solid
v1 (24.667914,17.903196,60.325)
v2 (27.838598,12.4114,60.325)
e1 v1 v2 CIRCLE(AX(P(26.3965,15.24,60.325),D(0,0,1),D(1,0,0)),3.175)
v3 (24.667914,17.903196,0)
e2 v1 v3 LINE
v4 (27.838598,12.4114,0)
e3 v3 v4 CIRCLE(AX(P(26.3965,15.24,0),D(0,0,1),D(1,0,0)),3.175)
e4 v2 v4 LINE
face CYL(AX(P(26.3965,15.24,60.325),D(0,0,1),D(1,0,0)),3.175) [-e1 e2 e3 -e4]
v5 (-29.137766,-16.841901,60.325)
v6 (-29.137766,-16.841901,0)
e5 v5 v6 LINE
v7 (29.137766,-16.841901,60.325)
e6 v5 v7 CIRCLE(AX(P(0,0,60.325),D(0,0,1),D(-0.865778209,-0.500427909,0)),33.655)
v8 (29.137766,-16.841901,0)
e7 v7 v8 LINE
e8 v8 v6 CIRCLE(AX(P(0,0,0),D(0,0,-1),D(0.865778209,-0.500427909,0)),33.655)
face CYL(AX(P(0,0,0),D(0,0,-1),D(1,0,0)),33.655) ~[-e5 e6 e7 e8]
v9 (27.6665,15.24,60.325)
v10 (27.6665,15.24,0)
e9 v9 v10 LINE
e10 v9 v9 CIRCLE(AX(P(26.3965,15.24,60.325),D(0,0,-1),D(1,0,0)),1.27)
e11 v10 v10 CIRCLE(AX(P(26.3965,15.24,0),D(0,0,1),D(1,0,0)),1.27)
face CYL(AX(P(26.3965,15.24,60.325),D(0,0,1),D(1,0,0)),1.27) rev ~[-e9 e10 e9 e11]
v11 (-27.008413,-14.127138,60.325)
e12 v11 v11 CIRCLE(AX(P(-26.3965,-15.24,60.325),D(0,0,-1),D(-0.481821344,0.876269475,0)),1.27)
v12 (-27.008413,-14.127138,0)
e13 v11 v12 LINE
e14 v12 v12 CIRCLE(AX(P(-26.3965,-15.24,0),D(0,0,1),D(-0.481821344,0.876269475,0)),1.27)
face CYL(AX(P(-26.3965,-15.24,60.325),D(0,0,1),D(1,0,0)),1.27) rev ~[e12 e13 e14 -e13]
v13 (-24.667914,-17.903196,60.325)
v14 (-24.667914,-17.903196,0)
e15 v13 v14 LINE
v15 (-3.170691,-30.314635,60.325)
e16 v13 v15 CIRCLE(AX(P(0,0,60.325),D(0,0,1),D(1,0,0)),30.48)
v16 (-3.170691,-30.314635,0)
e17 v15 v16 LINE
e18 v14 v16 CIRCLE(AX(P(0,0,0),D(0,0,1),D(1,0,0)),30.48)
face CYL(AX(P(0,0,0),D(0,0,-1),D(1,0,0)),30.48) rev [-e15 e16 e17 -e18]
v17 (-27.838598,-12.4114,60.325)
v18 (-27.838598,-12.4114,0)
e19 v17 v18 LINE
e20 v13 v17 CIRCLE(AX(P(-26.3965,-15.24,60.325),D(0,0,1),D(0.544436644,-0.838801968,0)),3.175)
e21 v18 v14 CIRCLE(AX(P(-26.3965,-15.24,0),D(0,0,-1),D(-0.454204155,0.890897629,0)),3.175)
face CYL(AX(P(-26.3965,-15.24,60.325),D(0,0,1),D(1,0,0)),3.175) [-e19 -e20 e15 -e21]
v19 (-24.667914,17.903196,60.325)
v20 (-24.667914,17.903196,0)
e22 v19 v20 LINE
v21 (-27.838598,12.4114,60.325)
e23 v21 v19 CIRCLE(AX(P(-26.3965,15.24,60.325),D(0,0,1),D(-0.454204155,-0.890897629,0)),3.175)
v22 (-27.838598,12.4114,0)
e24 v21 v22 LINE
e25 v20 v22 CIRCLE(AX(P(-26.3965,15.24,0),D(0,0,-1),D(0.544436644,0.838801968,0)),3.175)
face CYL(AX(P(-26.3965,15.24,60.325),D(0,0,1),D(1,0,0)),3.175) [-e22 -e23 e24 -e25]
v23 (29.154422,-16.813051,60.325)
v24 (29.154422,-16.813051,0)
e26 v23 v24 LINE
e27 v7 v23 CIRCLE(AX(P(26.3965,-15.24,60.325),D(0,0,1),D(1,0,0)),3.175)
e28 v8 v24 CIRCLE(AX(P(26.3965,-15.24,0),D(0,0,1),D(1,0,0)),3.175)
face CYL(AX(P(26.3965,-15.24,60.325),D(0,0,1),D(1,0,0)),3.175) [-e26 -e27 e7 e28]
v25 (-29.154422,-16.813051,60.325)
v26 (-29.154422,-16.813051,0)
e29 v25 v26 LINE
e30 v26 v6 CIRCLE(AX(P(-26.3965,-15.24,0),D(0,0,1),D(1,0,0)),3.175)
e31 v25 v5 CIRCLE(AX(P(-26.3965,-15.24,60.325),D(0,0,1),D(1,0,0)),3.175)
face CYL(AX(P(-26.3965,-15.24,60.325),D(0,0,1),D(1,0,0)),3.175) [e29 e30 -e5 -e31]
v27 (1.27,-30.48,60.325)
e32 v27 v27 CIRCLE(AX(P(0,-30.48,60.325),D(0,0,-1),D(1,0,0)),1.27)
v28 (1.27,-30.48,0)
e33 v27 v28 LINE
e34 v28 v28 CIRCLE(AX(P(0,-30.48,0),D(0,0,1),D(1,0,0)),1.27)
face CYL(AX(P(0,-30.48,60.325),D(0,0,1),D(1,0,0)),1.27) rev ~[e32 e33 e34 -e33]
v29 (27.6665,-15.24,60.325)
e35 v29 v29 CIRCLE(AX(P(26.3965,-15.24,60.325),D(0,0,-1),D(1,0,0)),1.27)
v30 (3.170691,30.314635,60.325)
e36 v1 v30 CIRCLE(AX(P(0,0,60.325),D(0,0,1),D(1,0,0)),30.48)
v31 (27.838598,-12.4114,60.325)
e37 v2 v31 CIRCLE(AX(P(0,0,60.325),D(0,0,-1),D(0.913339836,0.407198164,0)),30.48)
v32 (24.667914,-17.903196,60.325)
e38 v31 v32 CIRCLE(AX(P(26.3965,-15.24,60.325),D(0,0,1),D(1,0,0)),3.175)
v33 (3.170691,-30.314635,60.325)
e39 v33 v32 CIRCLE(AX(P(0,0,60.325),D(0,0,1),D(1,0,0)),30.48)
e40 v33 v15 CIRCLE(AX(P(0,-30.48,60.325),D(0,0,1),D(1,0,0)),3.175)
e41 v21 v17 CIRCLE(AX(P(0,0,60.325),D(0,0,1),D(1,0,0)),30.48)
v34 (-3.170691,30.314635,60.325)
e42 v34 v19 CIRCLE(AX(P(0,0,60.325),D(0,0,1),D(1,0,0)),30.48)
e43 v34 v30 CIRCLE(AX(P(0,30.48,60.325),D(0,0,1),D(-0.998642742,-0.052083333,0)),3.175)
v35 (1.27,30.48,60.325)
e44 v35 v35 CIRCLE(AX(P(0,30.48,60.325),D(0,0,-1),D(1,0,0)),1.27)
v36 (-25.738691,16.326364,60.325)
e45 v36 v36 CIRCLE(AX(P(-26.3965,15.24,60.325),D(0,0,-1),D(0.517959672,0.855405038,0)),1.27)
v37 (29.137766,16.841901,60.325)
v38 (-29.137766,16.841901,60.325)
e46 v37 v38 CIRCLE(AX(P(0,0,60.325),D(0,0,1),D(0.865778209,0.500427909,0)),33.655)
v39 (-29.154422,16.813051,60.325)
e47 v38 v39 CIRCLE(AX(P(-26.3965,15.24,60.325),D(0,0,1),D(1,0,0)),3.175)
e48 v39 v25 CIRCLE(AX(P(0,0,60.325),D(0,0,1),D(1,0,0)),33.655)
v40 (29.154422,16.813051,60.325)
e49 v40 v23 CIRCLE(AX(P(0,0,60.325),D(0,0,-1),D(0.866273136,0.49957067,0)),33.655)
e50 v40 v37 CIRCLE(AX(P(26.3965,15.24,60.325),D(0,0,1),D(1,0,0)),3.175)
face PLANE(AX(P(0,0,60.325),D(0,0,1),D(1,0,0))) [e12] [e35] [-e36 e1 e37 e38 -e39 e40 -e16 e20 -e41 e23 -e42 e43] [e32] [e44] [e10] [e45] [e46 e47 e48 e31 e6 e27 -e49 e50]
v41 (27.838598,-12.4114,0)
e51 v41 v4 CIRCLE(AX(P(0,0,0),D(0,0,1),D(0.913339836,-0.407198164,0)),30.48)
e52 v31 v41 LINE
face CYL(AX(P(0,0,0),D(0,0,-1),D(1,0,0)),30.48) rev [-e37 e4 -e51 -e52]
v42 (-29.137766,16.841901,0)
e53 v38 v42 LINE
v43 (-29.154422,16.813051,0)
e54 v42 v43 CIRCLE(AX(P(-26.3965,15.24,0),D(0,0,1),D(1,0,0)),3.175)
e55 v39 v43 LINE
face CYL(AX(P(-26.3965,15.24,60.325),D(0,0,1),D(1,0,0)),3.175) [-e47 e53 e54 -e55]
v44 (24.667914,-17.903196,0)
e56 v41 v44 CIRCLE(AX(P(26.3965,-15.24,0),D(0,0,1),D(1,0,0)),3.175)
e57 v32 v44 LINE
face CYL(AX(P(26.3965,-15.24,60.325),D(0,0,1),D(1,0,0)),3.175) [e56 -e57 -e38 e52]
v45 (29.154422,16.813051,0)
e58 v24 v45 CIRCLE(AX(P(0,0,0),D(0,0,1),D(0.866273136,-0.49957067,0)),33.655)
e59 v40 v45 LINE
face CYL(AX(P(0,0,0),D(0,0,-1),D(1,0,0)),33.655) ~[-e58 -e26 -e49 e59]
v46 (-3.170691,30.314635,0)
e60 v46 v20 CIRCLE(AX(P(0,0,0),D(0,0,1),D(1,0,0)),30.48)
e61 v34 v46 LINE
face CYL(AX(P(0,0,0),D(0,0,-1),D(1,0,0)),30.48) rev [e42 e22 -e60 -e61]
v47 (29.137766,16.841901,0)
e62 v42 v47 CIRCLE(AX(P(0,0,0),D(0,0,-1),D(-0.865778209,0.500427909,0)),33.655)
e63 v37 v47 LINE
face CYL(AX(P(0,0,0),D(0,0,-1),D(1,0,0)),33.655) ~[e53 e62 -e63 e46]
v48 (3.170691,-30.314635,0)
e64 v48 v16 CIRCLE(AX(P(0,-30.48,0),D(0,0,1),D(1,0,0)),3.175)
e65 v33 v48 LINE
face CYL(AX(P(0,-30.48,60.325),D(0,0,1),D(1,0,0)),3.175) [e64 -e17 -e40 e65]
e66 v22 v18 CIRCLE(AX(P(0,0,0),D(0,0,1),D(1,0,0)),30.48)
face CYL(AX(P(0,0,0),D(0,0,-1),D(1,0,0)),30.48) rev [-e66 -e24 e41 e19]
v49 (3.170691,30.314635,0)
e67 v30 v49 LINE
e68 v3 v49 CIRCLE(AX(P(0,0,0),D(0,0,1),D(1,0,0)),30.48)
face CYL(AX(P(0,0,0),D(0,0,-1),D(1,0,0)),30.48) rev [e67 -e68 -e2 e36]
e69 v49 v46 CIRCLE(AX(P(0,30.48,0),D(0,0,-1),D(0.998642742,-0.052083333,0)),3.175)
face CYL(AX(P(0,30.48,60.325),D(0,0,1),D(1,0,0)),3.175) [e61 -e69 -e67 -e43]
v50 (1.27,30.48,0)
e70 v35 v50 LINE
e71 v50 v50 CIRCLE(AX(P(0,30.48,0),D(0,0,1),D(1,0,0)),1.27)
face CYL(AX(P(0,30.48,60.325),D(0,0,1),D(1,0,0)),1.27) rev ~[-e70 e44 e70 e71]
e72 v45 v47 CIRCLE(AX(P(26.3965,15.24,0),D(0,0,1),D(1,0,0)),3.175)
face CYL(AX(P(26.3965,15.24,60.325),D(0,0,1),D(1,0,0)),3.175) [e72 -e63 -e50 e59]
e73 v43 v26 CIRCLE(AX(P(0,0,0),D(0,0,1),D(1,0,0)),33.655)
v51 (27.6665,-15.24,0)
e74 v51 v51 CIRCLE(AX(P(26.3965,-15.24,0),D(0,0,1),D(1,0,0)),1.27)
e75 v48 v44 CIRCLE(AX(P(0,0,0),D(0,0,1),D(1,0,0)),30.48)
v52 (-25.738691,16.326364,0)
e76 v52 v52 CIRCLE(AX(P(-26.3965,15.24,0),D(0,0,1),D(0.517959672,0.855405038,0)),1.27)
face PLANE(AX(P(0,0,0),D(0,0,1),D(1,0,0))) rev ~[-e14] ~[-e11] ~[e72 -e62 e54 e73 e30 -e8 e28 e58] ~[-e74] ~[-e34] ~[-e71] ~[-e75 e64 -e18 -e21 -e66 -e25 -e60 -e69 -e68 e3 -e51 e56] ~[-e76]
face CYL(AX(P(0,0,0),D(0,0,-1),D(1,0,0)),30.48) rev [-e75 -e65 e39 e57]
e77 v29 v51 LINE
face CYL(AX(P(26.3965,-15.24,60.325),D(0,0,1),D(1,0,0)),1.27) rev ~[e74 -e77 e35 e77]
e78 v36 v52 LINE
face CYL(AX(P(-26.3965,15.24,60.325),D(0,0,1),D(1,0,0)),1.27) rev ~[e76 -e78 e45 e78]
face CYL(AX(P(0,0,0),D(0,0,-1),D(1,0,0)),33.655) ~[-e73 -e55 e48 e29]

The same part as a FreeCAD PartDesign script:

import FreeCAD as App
import Part
import Sketcher

V = App.Vector
Q = App.Units.Quantity

doc = App.newDocument("Part")
body = doc.addObject("PartDesign::Body", "Body")

# Sketch on XY plane
sketch1 = body.newObject("Sketcher::SketchObject", "Sketch")
sketch1.AttachmentSupport = (doc.getObject("XY_Plane"), [""])
sketch1.MapMode = "FlatFace"
sketch1.addGeometry([
    Part.Circle(V(0, 0, 0), V(0, 0, 1), 34),
    Part.Circle(V(0, 0, 0), V(0, 0, 1), 30),
], False)
sketch1.addConstraint([
    Sketcher.Constraint("Coincident", 0, 3, -1, 1),
    Sketcher.Constraint("Coincident", 1, 3, -1, 1),
    Sketcher.Constraint("Diameter", 1, Q("2.4 in")),
    Sketcher.Constraint("Diameter", 0, Q("2.65 in")),
])
pad1 = body.newObject("PartDesign::Pad", "Pad")
pad1.Profile = sketch1
pad1.Length = Q("2.375 in")

# Sketch on XY plane
sketch2 = body.newObject("Sketcher::SketchObject", "Sketch001")
sketch2.AttachmentSupport = (doc.getObject("XY_Plane"), [""])
sketch2.MapMode = "FlatFace"
sketch2.AttachmentOffset = App.Placement(V(0, 0, 2.375 * 25.4), App.Rotation())
sketch2.addGeometry([
    Part.Circle(V(0, 30.5, 0), V(0, 0, 1), 3.2),  # 0
    Part.Circle(V(0, 30.5, 0), V(0, 0, 1), 1.3),  # 1
    Part.Circle(V(-26.4, 15.2, 0), V(0, 0, 1), 3.2),  # 2
    Part.Circle(V(-26.4, 15.2, 0), V(0, 0, 1), 1.3),  # 3
    Part.Circle(V(-26.4, -15.2, 0), V(0, 0, 1), 3.2),  # 4
    Part.Circle(V(-26.4, -15.2, 0), V(0, 0, 1), 1.3),  # 5
    Part.Circle(V(0, -30.5, 0), V(0, 0, 1), 3.2),  # 6
    Part.Circle(V(0, -30.5, 0), V(0, 0, 1), 1.3),  # 7
    Part.Circle(V(26.4, -15.2, 0), V(0, 0, 1), 3.2),  # 8
    Part.Circle(V(26.4, -15.2, 0), V(0, 0, 1), 1.3),  # 9
    Part.Circle(V(26.4, 15.2, 0), V(0, 0, 1), 3.2),  # 10
    Part.Circle(V(26.4, 15.2, 0), V(0, 0, 1), 1.3),  # 11
], False)
sketch2.addConstraint([
    Sketcher.Constraint("Coincident", 1, 3, 0, 3),
    Sketcher.Constraint("Coincident", 3, 3, 2, 3),
    Sketcher.Constraint("Coincident", 5, 3, 4, 3),
    Sketcher.Constraint("Coincident", 7, 3, 6, 3),
    Sketcher.Constraint("Coincident", 9, 3, 8, 3),
    Sketcher.Constraint("Coincident", 11, 3, 10, 3),
    Sketcher.Constraint("Equal", 0, 2),
    Sketcher.Constraint("Equal", 1, 3),
    Sketcher.Constraint("Equal", 2, 4),
    Sketcher.Constraint("Equal", 3, 5),
    Sketcher.Constraint("Equal", 4, 6),
    Sketcher.Constraint("Equal", 5, 7),
    Sketcher.Constraint("Equal", 6, 8),
    Sketcher.Constraint("Equal", 7, 9),
    Sketcher.Constraint("Equal", 8, 10),
    Sketcher.Constraint("Equal", 9, 11),
    Sketcher.Constraint("Symmetric", 0, 3, 6, 3, -1, 1),
    Sketcher.Constraint("Symmetric", 2, 3, 8, 3, -1, 1),
    Sketcher.Constraint("Symmetric", 4, 3, 10, 3, -1, 1),
    Sketcher.Constraint("Symmetric", 4, 3, 8, 3, -2),
    Sketcher.Constraint("PointOnObject", 0, 3, -2),
    Sketcher.Constraint("Diameter", 1, Q("0.1 in")),
    Sketcher.Constraint("Diameter", 0, Q("0.25 in")),
    Sketcher.Constraint("DistanceY", -1, 1, 0, 3, Q("1.2 in")),
    Sketcher.Constraint("DistanceY", 4, 3, 2, 3, Q("1.2 in")),
    Sketcher.Constraint("DistanceX", 2, 3, -1, 1, Q("26.3965 mm")),
])
pad2 = body.newObject("PartDesign::Pad", "Pad001")
pad2.Profile = sketch2
pad2.Length = Q("2.375 in")
pad2.Reversed = True

# Sketch on XY plane
sketch3 = body.newObject("Sketcher::SketchObject", "Sketch002")
sketch3.AttachmentSupport = (doc.getObject("XY_Plane"), [""])
sketch3.MapMode = "FlatFace"
sketch3.AttachmentOffset = App.Placement(V(0, 0, 2.375 * 25.4), App.Rotation())
sketch3.addGeometry([
    Part.Circle(V(0, 30.5, 0), V(0, 0, 1), 1.3),  # 0
    Part.Circle(V(-26.4, 15.2, 0), V(0, 0, 1), 1.3),  # 1
    Part.Circle(V(-26.4, -15.2, 0), V(0, 0, 1), 1.3),  # 2
    Part.Circle(V(0, -30.5, 0), V(0, 0, 1), 1.3),  # 3
    Part.Circle(V(26.4, -15.2, 0), V(0, 0, 1), 1.3),  # 4
    Part.Circle(V(26.4, 15.2, 0), V(0, 0, 1), 1.3),  # 5
], False)
sketch3.addConstraint([
    Sketcher.Constraint("Equal", 0, 1),
    Sketcher.Constraint("Equal", 1, 2),
    Sketcher.Constraint("Equal", 2, 3),
    Sketcher.Constraint("Equal", 3, 4),
    Sketcher.Constraint("Equal", 4, 5),
    Sketcher.Constraint("Symmetric", 0, 3, 3, 3, -1, 1),
    Sketcher.Constraint("Symmetric", 1, 3, 4, 3, -1, 1),
    Sketcher.Constraint("Symmetric", 2, 3, 5, 3, -1, 1),
    Sketcher.Constraint("Symmetric", 2, 3, 4, 3, -2),
    Sketcher.Constraint("PointOnObject", 0, 3, -2),
    Sketcher.Constraint("Diameter", 0, Q("0.1 in")),
    Sketcher.Constraint("DistanceY", -1, 1, 0, 3, Q("1.2 in")),
    Sketcher.Constraint("DistanceY", 2, 3, 1, 3, Q("1.2 in")),
    Sketcher.Constraint("DistanceX", 1, 3, -1, 1, Q("26.3965 mm")),
])
pocket1 = body.newObject("PartDesign::Pocket", "Pocket")
pocket1.Profile = sketch3
pocket1.Length = Q("2.375 in")

doc.recompute()
